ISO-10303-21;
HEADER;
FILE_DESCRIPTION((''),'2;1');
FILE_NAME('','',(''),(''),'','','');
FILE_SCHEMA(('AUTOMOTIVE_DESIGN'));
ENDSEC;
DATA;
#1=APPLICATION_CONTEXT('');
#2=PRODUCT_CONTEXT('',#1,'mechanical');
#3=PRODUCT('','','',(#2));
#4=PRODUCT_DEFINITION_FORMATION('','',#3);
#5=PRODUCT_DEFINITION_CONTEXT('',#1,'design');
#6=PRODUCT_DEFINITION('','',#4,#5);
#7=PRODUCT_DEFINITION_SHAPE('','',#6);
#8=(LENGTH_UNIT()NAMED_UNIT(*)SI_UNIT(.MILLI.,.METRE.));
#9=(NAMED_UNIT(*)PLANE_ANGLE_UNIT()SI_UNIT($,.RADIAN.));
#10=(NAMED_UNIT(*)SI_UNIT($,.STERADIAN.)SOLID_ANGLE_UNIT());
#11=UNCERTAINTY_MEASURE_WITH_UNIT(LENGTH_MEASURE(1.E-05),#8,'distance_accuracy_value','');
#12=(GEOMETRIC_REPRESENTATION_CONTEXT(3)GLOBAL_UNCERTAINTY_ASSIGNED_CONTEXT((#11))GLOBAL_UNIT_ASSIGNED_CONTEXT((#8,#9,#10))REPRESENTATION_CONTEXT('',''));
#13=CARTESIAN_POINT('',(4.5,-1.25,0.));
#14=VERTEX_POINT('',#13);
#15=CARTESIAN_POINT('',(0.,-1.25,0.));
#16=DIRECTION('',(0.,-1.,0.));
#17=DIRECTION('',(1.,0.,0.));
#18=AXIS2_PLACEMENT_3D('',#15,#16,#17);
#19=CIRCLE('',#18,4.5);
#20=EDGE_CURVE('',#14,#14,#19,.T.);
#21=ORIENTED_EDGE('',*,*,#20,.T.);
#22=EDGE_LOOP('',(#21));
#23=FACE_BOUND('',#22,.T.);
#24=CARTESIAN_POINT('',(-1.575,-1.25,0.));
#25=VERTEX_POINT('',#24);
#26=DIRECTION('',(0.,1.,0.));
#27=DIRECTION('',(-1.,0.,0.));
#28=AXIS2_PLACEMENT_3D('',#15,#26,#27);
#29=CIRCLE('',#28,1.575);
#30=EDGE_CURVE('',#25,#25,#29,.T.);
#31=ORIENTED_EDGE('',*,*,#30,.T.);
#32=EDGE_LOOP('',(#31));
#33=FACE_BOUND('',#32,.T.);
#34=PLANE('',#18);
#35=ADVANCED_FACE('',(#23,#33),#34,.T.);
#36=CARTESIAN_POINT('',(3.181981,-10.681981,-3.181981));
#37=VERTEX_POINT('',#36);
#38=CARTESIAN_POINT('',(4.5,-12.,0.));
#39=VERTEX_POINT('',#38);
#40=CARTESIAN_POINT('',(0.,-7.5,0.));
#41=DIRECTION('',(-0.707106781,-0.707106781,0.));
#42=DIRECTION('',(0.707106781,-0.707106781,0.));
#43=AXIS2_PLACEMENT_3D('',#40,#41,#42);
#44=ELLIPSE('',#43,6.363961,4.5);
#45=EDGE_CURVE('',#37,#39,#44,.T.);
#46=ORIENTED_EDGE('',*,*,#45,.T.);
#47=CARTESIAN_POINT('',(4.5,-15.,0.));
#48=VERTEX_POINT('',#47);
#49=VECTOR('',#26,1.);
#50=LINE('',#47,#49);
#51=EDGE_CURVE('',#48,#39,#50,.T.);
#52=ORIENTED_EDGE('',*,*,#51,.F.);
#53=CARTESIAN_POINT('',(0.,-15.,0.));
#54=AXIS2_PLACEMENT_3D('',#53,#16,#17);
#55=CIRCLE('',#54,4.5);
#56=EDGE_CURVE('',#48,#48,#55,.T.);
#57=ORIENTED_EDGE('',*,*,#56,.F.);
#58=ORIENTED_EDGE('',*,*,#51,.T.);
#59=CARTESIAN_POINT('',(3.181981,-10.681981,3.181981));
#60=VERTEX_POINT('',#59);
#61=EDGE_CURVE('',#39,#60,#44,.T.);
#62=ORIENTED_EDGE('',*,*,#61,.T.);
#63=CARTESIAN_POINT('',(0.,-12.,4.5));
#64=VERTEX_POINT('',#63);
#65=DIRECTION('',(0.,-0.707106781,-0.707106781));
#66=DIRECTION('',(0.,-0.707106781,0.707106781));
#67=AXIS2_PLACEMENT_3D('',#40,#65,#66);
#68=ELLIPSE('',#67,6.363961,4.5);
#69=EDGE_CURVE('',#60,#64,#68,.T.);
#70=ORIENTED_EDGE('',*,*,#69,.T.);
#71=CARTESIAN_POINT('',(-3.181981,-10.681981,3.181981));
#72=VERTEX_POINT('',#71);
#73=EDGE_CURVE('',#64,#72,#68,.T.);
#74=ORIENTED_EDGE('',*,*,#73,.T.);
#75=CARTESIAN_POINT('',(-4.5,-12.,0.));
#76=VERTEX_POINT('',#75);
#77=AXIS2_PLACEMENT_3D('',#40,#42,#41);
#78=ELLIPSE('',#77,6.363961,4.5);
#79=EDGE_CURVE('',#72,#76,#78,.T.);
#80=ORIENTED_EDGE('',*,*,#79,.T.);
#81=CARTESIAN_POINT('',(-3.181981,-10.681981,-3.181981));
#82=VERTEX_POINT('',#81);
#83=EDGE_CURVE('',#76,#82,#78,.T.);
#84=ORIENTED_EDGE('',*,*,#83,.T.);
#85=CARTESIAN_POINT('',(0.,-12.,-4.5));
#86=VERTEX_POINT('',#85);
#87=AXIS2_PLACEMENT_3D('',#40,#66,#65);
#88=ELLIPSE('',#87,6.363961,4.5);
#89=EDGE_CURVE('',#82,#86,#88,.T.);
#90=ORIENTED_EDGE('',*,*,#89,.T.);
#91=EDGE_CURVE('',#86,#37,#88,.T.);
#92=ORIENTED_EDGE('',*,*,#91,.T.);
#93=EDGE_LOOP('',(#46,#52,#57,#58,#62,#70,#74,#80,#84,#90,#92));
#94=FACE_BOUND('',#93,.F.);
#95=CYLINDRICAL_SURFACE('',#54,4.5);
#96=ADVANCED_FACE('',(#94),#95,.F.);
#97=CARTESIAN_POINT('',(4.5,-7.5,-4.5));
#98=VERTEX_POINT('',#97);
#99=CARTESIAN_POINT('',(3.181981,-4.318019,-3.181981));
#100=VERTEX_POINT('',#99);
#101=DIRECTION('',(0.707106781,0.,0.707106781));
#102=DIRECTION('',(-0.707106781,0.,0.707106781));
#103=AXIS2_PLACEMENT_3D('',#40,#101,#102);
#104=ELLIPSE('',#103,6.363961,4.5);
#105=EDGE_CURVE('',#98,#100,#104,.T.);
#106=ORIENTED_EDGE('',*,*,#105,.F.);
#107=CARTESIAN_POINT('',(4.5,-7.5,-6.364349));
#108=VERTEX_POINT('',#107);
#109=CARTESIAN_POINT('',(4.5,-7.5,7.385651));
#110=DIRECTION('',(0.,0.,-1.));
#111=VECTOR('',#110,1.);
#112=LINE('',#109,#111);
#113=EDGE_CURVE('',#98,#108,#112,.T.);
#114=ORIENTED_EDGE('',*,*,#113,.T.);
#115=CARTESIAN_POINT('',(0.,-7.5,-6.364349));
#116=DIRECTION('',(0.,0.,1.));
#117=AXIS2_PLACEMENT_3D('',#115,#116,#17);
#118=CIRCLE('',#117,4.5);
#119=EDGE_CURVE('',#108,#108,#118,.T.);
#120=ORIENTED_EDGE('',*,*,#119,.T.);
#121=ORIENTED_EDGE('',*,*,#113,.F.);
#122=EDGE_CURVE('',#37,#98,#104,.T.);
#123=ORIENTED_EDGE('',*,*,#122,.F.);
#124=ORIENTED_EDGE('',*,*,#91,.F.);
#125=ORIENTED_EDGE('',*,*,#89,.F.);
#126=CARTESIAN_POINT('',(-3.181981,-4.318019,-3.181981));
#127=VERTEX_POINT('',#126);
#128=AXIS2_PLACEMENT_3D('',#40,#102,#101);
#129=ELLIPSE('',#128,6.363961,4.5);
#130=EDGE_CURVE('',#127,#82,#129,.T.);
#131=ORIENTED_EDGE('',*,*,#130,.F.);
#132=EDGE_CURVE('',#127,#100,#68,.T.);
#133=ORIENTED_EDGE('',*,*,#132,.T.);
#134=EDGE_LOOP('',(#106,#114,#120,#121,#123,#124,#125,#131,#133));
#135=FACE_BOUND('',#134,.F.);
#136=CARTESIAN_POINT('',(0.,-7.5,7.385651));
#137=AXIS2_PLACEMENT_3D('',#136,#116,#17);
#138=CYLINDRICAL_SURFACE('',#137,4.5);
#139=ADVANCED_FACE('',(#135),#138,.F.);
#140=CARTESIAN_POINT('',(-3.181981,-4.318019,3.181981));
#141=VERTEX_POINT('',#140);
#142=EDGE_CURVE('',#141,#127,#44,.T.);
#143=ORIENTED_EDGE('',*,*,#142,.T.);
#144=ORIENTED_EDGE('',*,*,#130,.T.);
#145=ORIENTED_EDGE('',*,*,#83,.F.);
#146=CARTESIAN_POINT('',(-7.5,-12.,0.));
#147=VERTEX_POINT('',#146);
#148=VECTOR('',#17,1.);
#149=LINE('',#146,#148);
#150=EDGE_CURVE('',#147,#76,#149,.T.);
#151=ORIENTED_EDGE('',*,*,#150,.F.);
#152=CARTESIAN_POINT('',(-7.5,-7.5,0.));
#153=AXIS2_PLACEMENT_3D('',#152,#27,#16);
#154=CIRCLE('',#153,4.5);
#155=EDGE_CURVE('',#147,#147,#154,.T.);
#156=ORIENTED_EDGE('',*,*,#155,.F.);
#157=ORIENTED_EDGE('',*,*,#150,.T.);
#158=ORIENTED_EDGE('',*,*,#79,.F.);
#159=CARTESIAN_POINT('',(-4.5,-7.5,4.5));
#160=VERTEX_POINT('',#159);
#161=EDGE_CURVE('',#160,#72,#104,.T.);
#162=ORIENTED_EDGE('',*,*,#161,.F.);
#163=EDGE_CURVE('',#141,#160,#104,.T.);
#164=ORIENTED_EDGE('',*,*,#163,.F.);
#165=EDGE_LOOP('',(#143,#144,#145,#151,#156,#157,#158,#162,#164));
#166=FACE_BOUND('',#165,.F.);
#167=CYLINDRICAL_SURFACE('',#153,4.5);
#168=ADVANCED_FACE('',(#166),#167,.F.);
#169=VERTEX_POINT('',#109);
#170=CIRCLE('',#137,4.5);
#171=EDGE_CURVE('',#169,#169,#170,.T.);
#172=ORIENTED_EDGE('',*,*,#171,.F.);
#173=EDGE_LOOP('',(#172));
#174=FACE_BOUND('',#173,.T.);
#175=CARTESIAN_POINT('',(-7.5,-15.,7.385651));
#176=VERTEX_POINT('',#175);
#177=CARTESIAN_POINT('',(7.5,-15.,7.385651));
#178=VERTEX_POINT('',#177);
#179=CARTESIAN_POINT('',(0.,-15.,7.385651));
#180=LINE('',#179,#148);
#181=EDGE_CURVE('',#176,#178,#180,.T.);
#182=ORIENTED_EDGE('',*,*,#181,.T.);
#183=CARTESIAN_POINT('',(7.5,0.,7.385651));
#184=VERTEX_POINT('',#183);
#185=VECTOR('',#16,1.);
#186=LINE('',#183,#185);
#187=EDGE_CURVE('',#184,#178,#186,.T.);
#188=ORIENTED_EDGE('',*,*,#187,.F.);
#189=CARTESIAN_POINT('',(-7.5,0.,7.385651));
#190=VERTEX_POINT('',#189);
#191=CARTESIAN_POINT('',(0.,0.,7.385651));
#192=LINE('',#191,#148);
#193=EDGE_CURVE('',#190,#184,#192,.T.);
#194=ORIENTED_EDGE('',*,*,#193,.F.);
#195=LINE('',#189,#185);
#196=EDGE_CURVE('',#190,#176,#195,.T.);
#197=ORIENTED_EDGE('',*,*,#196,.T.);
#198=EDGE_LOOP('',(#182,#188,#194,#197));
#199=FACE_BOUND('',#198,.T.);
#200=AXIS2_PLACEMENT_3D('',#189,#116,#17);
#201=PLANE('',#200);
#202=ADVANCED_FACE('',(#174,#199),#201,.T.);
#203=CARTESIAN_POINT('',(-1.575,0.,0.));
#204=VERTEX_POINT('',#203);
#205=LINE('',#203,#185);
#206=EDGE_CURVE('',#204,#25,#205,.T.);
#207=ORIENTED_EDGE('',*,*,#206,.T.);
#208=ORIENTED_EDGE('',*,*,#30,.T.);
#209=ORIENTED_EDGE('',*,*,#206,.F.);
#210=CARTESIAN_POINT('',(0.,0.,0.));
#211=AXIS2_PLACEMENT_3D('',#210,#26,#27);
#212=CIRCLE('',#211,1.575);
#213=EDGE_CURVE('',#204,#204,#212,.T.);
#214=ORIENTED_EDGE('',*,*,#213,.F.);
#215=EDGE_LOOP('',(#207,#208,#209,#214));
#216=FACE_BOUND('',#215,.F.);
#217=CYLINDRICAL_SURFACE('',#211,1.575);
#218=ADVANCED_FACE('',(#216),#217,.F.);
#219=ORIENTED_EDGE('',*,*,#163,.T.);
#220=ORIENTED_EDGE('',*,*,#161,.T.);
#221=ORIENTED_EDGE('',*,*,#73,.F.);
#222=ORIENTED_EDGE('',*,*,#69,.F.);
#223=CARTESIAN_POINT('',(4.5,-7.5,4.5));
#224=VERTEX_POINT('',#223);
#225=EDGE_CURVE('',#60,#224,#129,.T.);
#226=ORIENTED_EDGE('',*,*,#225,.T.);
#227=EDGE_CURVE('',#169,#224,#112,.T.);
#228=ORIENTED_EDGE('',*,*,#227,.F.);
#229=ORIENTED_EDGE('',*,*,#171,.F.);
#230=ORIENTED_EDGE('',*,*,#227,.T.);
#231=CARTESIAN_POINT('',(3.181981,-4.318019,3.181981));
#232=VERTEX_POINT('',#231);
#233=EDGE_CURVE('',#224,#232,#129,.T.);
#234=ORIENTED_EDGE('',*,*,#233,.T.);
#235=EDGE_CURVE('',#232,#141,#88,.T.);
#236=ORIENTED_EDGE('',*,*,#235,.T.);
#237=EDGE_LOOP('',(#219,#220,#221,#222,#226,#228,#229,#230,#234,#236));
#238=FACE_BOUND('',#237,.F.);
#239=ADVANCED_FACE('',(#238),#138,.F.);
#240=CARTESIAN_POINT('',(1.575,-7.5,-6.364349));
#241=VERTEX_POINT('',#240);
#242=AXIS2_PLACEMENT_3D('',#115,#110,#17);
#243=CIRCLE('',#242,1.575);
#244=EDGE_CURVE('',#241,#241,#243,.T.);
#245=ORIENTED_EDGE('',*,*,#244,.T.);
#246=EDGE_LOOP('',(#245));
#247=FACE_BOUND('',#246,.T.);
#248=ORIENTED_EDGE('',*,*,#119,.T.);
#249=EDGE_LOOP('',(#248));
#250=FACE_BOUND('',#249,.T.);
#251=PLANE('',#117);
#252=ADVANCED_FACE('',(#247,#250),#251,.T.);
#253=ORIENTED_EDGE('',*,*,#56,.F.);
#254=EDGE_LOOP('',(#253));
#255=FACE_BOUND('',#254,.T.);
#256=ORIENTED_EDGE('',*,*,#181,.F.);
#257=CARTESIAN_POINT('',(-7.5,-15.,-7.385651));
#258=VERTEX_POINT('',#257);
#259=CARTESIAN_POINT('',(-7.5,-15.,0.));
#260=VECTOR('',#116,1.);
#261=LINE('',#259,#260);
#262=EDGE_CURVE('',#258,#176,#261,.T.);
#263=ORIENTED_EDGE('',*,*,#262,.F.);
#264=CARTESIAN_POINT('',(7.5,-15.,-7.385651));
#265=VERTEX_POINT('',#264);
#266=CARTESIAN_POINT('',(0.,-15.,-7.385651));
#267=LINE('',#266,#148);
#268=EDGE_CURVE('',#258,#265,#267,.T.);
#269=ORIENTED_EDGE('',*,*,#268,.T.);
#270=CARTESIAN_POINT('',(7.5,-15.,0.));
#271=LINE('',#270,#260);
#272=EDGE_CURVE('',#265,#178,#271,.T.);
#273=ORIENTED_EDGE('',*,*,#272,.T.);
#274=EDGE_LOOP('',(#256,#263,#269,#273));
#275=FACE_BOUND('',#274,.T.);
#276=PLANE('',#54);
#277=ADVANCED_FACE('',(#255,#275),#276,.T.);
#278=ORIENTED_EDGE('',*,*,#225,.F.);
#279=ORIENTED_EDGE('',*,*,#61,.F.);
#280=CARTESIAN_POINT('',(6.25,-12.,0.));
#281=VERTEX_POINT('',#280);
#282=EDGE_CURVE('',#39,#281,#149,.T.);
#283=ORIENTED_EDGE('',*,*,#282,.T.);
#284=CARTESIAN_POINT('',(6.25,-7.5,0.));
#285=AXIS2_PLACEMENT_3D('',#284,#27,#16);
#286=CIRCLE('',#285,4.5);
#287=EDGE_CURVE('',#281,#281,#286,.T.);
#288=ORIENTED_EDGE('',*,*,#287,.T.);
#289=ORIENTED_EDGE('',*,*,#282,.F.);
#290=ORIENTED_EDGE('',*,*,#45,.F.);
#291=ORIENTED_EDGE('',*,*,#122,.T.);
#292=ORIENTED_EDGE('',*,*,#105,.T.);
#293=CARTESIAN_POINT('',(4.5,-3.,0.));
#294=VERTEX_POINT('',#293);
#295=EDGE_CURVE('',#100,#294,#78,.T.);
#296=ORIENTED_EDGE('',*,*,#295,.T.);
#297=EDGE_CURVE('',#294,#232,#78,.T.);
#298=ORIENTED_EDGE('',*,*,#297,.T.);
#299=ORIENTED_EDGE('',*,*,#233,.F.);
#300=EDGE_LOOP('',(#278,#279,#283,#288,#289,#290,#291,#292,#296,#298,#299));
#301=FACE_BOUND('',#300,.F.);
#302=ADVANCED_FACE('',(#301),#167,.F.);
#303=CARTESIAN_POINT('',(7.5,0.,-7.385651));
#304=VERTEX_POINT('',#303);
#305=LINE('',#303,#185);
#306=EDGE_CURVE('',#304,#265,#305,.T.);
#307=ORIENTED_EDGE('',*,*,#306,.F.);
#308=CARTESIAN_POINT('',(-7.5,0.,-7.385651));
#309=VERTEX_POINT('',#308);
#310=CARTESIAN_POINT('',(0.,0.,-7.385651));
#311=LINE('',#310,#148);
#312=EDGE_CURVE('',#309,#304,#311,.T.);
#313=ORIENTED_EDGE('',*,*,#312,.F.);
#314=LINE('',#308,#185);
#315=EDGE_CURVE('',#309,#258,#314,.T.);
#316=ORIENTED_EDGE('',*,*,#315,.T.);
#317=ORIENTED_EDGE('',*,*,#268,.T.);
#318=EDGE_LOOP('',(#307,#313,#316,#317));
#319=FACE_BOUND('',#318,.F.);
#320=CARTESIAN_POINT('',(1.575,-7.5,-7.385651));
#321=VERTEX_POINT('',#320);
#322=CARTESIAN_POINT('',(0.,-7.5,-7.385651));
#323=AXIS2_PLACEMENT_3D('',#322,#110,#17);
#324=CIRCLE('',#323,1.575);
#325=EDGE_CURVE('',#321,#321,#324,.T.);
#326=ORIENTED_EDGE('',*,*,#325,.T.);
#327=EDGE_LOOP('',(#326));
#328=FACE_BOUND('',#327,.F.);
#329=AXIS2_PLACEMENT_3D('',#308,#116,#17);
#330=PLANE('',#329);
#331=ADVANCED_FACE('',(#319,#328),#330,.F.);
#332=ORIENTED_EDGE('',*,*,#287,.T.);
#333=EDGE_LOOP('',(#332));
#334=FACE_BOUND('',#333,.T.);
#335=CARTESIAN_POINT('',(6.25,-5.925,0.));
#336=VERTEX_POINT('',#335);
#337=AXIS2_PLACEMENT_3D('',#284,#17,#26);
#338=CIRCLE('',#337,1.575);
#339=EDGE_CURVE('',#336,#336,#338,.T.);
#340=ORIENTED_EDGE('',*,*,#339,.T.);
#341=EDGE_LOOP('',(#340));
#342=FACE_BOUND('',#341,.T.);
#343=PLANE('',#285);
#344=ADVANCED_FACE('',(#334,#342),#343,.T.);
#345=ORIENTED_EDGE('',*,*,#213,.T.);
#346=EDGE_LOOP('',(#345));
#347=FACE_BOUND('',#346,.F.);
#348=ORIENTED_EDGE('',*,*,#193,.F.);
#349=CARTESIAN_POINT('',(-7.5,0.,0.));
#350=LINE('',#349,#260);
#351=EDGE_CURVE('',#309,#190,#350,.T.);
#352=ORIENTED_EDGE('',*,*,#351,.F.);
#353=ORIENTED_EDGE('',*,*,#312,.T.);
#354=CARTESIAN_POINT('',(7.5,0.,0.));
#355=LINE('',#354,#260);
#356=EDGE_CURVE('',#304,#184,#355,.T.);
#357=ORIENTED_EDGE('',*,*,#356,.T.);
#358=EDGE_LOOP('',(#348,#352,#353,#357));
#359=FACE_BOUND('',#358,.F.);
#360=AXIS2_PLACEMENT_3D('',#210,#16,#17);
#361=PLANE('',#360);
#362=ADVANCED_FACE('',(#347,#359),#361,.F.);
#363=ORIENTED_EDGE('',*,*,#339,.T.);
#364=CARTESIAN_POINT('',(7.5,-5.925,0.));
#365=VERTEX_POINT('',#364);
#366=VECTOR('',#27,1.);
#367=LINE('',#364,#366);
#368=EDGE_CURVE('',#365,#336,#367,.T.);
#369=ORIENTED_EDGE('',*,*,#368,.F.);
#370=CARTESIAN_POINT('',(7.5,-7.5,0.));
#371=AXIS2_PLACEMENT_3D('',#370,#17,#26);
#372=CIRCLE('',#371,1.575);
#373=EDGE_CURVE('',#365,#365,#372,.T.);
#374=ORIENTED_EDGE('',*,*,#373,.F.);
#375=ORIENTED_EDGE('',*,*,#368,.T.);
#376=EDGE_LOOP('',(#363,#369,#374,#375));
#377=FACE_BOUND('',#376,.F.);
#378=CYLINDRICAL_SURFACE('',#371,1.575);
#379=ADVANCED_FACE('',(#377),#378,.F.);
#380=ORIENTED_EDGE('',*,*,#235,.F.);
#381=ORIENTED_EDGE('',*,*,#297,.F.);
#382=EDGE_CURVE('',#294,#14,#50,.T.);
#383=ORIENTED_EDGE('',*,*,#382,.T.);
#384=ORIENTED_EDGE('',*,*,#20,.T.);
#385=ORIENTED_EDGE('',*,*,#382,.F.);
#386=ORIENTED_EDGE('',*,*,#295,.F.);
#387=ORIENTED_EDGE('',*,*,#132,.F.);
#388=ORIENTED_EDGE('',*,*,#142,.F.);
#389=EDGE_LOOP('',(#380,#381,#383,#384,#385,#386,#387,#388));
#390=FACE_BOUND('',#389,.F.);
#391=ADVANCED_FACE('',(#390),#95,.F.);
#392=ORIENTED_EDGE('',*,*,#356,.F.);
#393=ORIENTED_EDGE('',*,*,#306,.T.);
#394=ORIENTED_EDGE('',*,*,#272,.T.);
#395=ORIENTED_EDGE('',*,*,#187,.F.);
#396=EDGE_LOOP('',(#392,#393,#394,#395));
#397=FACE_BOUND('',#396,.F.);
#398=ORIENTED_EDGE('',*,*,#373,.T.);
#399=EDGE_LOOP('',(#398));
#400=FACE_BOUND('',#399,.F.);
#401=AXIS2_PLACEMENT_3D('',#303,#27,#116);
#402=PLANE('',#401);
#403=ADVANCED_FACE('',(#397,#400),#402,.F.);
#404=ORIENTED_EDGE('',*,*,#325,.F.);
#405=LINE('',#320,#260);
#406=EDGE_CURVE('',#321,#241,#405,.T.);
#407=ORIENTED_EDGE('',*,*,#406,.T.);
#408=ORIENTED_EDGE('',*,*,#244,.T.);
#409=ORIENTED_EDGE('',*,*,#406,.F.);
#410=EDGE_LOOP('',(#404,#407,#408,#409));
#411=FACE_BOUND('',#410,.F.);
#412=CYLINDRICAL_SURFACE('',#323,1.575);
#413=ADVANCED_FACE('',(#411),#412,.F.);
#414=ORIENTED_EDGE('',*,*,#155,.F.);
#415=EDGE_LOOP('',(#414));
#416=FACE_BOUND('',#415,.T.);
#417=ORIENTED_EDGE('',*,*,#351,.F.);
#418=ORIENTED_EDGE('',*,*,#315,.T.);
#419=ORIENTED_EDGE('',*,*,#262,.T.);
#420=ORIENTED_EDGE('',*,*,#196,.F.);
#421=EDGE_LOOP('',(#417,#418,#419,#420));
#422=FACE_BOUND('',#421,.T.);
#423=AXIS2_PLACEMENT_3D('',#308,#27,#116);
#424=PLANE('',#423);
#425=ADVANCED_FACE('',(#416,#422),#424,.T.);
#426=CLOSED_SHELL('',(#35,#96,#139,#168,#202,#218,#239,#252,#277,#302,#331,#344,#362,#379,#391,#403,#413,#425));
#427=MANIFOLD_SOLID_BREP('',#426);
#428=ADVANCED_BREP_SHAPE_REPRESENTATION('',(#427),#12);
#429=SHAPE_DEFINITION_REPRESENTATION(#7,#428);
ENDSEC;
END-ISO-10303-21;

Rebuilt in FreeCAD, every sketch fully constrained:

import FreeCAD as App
import Part
import Sketcher
Q = App.Units.Quantity


def add_polygon(sketch, points):
    """Adds a closed chain of lines whose ends are joined by coincident constraints."""
    first, n = sketch.GeometryCount, len(points)
    for a, b in zip(points, points[1:] + points[:1]):
        sketch.addGeometry(Part.LineSegment(App.Vector(*a, 0), App.Vector(*b, 0)), False)
    for i in range(n):
        sketch.addConstraint(Sketcher.Constraint("Coincident", first + i, 2, first + (i + 1) % n, 1))

doc = App.newDocument("Part")
body = doc.addObject("PartDesign::Body", "Body")

# Sketch on XZ plane
sketch1 = body.newObject("Sketcher::SketchObject", "Sketch")
sketch1.AttachmentSupport = (doc.getObject("XZ_Plane"), [""])
sketch1.MapMode = "FlatFace"
add_polygon(sketch1, [(-7.5, 7.385651), (-7.5, -7.385651), (7.5, -7.385651), (7.5, 7.385651)])  # lines 0-3
sketch1.addConstraint(Sketcher.Constraint("Vertical", 0))
sketch1.addConstraint(Sketcher.Constraint("Horizontal", 1))
sketch1.addConstraint(Sketcher.Constraint("Vertical", 2))
sketch1.addConstraint(Sketcher.Constraint("Horizontal", 3))
sketch1.addConstraint(Sketcher.Constraint("Symmetric", 0, 2, 2, 2, -1, 1))
sketch1.addConstraint(Sketcher.Constraint("DistanceX", 1, 1, 1, 2, Q("15 mm")))
sketch1.addConstraint(Sketcher.Constraint("DistanceY", 0, 2, 0, 1, Q("14.771302 mm")))
pad1 = body.newObject("PartDesign::Pad", "Pad")
pad1.Profile = sketch1
pad1.Length = 15

# Sketch on XZ plane
sketch2 = body.newObject("Sketcher::SketchObject", "Sketch001")
sketch2.AttachmentSupport = (doc.getObject("XZ_Plane"), [""])
sketch2.MapMode = "FlatFace"
sketch2.AttachmentOffset = App.Placement(App.Vector(0, 0, 15), App.Rotation())
sketch2.addGeometry(Part.Circle(App.Vector(0, 0, 0), App.Vector(0, 0, 1), 4.5), False)
sketch2.addConstraint(Sketcher.Constraint("Coincident", 0, 3, -1, 1))
sketch2.addConstraint(Sketcher.Constraint("Diameter", 0, Q("9 mm")))
pocket1 = body.newObject("PartDesign::Pocket", "Pocket")
pocket1.Profile = sketch2
pocket1.Length = 13.75

# Sketch on XY plane
sketch3 = body.newObject("Sketcher::SketchObject", "Sketch002")
sketch3.AttachmentSupport = (doc.getObject("XY_Plane"), [""])
sketch3.MapMode = "FlatFace"
sketch3.AttachmentOffset = App.Placement(App.Vector(0, 0, 7.385651), App.Rotation())
sketch3.addGeometry(Part.Circle(App.Vector(0, -7.5, 0), App.Vector(0, 0, 1), 4.5), False)
sketch3.addConstraint(Sketcher.Constraint("PointOnObject", 0, 3, -2))
sketch3.addConstraint(Sketcher.Constraint("Diameter", 0, Q("9 mm")))
sketch3.addConstraint(Sketcher.Constraint("DistanceY", 0, 3, -1, 1, Q("7.5 mm")))
pocket2 = body.newObject("PartDesign::Pocket", "Pocket001")
pocket2.Profile = sketch3
pocket2.Length = 13.75

# Sketch on YZ plane
sketch4 = body.newObject("Sketcher::SketchObject", "Sketch003")
sketch4.AttachmentSupport = (doc.getObject("YZ_Plane"), [""])
sketch4.MapMode = "FlatFace"
sketch4.AttachmentOffset = App.Placement(App.Vector(0, 0, -7.5), App.Rotation())
sketch4.addGeometry(Part.Circle(App.Vector(-7.5, 0, 0), App.Vector(0, 0, 1), 4.5), False)
sketch4.addConstraint(Sketcher.Constraint("PointOnObject", 0, 3, -1))
sketch4.addConstraint(Sketcher.Constraint("Diameter", 0, Q("9 mm")))
sketch4.addConstraint(Sketcher.Constraint("DistanceX", 0, 3, -1, 1, Q("7.5 mm")))
pocket3 = body.newObject("PartDesign::Pocket", "Pocket002")
pocket3.Profile = sketch4
pocket3.Length = 13.75
pocket3.Reversed = True

# Sketch on XZ plane
sketch5 = body.newObject("Sketcher::SketchObject", "Sketch004")
sketch5.AttachmentSupport = (doc.getObject("XZ_Plane"), [""])
sketch5.MapMode = "FlatFace"
sketch5.addGeometry(Part.Circle(App.Vector(0, 0, 0), App.Vector(0, 0, 1), 1.575), False)
sketch5.addConstraint(Sketcher.Constraint("Coincident", 0, 3, -1, 1))
sketch5.addConstraint(Sketcher.Constraint("Diameter", 0, Q("3.15 mm")))
pocket4 = body.newObject("PartDesign::Pocket", "Pocket003")
pocket4.Profile = sketch5
pocket4.Type = "ThroughAll"
pocket4.Reversed = True

# Sketch on XY plane
sketch6 = body.newObject("Sketcher::SketchObject", "Sketch005")
sketch6.AttachmentSupport = (doc.getObject("XY_Plane"), [""])
sketch6.MapMode = "FlatFace"
sketch6.AttachmentOffset = App.Placement(App.Vector(0, 0, -7.385651), App.Rotation())
sketch6.addGeometry(Part.Circle(App.Vector(0, -7.5, 0), App.Vector(0, 0, 1), 1.575), False)
sketch6.addConstraint(Sketcher.Constraint("PointOnObject", 0, 3, -2))
sketch6.addConstraint(Sketcher.Constraint("Diameter", 0, Q("3.15 mm")))
sketch6.addConstraint(Sketcher.Constraint("DistanceY", 0, 3, -1, 1, Q("7.5 mm")))
pocket5 = body.newObject("PartDesign::Pocket", "Pocket004")
pocket5.Profile = sketch6
pocket5.Type = "ThroughAll"
pocket5.Reversed = True

# Sketch on YZ plane
sketch7 = body.newObject("Sketcher::SketchObject", "Sketch006")
sketch7.AttachmentSupport = (doc.getObject("YZ_Plane"), [""])
sketch7.MapMode = "FlatFace"
sketch7.AttachmentOffset = App.Placement(App.Vector(0, 0, 7.5), App.Rotation())
sketch7.addGeometry(Part.Circle(App.Vector(-7.5, 0, 0), App.Vector(0, 0, 1), 1.575), False)
sketch7.addConstraint(Sketcher.Constraint("PointOnObject", 0, 3, -1))
sketch7.addConstraint(Sketcher.Constraint("Diameter", 0, Q("3.15 mm")))
sketch7.addConstraint(Sketcher.Constraint("DistanceX", 0, 3, -1, 1, Q("7.5 mm")))
pocket6 = body.newObject("PartDesign::Pocket", "Pocket005")
pocket6.Profile = sketch7
pocket6.Type = "ThroughAll"

doc.recompute()
